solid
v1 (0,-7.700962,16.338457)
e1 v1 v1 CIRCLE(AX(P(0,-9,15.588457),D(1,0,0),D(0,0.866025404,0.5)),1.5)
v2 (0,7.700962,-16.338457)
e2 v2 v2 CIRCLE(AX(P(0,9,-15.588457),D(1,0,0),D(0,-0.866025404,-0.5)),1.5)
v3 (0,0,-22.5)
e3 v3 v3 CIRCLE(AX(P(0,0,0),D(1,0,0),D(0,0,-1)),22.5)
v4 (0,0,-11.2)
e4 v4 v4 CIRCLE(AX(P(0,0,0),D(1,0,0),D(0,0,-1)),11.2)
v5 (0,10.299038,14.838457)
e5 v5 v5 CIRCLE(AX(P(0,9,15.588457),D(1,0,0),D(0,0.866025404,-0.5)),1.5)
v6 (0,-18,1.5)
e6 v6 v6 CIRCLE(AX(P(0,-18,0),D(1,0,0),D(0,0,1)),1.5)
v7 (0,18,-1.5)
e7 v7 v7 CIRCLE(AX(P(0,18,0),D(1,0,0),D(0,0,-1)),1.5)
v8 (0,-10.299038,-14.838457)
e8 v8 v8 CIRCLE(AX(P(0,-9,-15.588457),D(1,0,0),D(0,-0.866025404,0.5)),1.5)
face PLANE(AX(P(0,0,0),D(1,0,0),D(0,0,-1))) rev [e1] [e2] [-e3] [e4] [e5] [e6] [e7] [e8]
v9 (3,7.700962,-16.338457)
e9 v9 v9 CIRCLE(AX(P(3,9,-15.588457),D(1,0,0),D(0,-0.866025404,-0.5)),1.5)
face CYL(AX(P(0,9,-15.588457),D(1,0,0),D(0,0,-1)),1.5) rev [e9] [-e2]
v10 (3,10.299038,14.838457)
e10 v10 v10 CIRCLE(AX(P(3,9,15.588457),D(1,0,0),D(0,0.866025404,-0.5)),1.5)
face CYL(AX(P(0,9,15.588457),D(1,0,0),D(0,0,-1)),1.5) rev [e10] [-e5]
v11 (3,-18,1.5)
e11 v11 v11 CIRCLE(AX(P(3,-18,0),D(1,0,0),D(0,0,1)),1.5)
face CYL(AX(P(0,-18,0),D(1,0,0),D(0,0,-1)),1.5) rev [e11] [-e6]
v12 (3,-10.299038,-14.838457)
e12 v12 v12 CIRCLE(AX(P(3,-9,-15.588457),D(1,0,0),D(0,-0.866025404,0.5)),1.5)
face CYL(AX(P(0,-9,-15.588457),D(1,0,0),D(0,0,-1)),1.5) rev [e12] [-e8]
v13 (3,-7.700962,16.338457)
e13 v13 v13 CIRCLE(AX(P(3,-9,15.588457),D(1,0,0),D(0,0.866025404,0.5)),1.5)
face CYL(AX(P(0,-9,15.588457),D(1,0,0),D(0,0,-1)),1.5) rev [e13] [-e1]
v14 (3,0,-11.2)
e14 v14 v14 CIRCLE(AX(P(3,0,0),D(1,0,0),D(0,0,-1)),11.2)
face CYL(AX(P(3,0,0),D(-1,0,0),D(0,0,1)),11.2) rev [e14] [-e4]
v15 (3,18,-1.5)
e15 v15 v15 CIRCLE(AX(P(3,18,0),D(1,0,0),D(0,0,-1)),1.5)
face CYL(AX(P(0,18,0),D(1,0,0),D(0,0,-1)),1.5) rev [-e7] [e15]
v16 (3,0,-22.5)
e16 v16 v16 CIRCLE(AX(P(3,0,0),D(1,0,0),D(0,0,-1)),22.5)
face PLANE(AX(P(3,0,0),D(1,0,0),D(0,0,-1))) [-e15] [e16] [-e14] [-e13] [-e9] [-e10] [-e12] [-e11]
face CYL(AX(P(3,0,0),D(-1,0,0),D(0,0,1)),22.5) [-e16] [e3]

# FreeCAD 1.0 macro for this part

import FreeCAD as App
import Part
import Sketcher
Q = App.Units.Quantity

doc = App.newDocument("Part")
body = doc.addObject("PartDesign::Body", "Body")

sketch1 = doc.addObject("Sketcher::SketchObject", "Sketch")
body.addObject(sketch1)
sketch1.AttachmentSupport = (doc.YZ_Plane, [""])
sketch1.MapMode = "FlatFace"
sketch1.addGeometry([
    Part.Circle(App.Vector(0, 0, 0), App.Vector(0, 0, 1), 22.5),
    Part.Circle(App.Vector(0, 0, 0), App.Vector(0, 0, 1), 11.2),
], False)
sketch1.addConstraint([
    Sketcher.Constraint("Coincident", 0, 3, -1, 1),
    Sketcher.Constraint("Coincident", 1, 3, -1, 1),
    Sketcher.Constraint("Diameter", 0, Q("45 mm")),
    Sketcher.Constraint("Diameter", 1, Q("22.4 mm")),
])
pad1 = doc.addObject("PartDesign::Pad", "Pad")
body.addObject(pad1)
pad1.Profile = sketch1
pad1.Length = 3

sketch2 = doc.addObject("Sketcher::SketchObject", "Sketch001")
body.addObject(sketch2)
sketch2.AttachmentSupport = (doc.YZ_Plane, [""])
sketch2.MapMode = "FlatFace"
sketch2.AttachmentOffset = App.Placement(App.Vector(0, 0, 3), App.Rotation())
sketch2.addGeometry(Part.Circle(App.Vector(18, 0, 0), App.Vector(0, 0, 1), 1.5), False)
sketch2.addConstraint([
    Sketcher.Constraint("PointOnObject", 0, 3, -1),
    Sketcher.Constraint("Diameter", 0, Q("3 mm")),
    Sketcher.Constraint("DistanceX", -1, 1, 0, 3, Q("18 mm")),
])
pocket1 = doc.addObject("PartDesign::Pocket", "Pocket")
body.addObject(pocket1)
pocket1.Profile = sketch2
pocket1.Type = "ThroughAll"
doc.recompute()

polarpattern = doc.addObject("PartDesign::PolarPattern", "PolarPattern")
body.addObject(polarpattern)
polarpattern.Originals = [pocket1]
polarpattern.Axis = (doc.X_Axis, [""])
polarpattern.Angle = 360
polarpattern.Occurrences = 6
body.Tip = polarpattern

doc.recompute()
